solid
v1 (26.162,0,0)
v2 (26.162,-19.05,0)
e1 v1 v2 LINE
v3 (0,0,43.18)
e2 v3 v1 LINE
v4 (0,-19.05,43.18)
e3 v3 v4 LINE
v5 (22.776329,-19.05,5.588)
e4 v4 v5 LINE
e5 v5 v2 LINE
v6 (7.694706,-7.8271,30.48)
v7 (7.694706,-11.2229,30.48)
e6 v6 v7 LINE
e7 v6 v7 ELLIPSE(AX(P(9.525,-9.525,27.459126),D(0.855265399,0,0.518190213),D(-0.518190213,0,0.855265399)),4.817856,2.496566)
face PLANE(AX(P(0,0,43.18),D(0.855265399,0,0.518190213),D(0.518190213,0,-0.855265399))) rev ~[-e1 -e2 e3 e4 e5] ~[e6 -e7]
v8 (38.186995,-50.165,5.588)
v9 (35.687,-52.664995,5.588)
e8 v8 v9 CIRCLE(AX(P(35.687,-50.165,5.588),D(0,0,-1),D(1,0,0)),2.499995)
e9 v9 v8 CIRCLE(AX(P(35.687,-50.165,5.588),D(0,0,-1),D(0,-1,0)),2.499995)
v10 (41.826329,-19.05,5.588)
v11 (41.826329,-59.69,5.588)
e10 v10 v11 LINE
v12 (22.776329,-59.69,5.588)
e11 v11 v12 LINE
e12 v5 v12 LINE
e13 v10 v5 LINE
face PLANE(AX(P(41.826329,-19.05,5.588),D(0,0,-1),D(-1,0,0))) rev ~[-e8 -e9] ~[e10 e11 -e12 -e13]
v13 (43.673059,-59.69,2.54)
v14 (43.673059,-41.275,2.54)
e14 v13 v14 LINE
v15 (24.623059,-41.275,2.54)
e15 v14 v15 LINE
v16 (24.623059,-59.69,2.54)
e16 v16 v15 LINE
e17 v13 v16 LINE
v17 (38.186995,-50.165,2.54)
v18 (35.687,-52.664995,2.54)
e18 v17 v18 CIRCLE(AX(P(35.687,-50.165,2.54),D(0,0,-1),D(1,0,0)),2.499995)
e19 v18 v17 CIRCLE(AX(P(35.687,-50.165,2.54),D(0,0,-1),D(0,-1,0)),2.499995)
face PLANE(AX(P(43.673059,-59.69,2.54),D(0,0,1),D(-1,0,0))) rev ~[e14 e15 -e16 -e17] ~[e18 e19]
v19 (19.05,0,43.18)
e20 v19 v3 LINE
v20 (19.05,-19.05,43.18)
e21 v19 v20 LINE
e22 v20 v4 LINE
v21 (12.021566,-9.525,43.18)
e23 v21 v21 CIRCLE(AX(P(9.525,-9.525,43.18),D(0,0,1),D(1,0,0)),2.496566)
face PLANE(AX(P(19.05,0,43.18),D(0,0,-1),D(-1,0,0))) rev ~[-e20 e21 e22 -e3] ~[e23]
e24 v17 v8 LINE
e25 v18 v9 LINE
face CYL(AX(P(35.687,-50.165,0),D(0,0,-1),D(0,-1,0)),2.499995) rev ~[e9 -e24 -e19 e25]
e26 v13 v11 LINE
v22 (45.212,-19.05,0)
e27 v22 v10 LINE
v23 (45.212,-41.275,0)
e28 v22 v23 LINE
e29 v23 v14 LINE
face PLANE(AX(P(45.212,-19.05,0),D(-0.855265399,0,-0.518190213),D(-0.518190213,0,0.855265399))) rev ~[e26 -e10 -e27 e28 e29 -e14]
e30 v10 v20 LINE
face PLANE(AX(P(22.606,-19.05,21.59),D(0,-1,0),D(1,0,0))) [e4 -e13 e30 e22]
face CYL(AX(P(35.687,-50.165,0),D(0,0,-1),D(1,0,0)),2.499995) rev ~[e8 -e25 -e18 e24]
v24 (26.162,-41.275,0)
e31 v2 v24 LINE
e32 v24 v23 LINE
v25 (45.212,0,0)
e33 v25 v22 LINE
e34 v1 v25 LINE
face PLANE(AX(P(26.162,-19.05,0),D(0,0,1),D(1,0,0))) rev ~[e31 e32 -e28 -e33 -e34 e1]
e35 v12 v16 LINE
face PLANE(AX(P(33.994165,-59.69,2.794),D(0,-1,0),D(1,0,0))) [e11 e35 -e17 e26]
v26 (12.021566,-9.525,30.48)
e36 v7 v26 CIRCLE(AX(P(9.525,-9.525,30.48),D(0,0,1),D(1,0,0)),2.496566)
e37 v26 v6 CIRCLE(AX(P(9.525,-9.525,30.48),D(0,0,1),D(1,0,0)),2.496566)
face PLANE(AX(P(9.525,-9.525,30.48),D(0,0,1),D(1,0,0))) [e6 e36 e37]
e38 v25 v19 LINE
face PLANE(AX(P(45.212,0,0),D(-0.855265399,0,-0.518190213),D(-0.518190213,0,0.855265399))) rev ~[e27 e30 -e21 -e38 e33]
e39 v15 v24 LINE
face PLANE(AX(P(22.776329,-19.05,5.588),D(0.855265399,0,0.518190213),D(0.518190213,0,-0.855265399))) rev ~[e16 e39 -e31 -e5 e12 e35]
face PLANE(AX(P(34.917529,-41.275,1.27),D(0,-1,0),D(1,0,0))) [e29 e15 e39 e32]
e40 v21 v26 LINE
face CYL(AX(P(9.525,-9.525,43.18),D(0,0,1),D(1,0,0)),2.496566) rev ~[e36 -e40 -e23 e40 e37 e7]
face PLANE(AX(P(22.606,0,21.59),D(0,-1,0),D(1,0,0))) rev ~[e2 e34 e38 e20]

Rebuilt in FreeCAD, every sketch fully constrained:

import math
import FreeCAD as App
import Part
import Sketcher
Q = App.Units.Quantity


def add_polygon(sketch, points):
    """Adds a closed chain of lines whose ends are joined by coincident constraints."""
    first, n = sketch.GeometryCount, len(points)
    for a, b in zip(points, points[1:] + points[:1]):
        sketch.addGeometry(Part.LineSegment(App.Vector(*a, 0), App.Vector(*b, 0)), False)
    for i in range(n):
        sketch.addConstraint(Sketcher.Constraint("Coincident", first + i, 2, first + (i + 1) % n, 1))

doc = App.newDocument("Part")
params = doc.addObject("Spreadsheet::Sheet", "Params")
for row, (alias, value) in enumerate([
    ("sketch1_width", "0.75 in"),
    ("pad1_length", "0.75 in"),
    ("sketch2_width", "0.75 in"),
    ("pad2_length", "1.6 in"),
    ("pocket1_length", "0.5 in"),
    ("sketch5_width", "0.75 in"),
    ("pocket3_length", "0.725 in"),
], start=1):
    params.set(f"A{row}", alias)
    params.set(f"B{row}", "=" + value)
    params.setAlias(f"B{row}", alias)

body = doc.addObject("PartDesign::Body", "Body")

# Sketch on XZ plane
sketch1 = body.newObject("Sketcher::SketchObject", "Sketch")
sketch1.AttachmentSupport = (doc.getObject("XZ_Plane"), [""])
sketch1.MapMode = "FlatFace"
add_polygon(sketch1, [(19.05, 43.18), (0, 43.18), (26.162, 0), (45.212, 0)])  # lines 0-3
sketch1.addConstraint(Sketcher.Constraint("Horizontal", 0))
sketch1.addConstraint(Sketcher.Constraint("Horizontal", 2))
sketch1.addConstraint(Sketcher.Constraint("PointOnObject", 0, 2, -2))
sketch1.addConstraint(Sketcher.Constraint("PointOnObject", 1, 2, -1))
sketch1.addConstraint(Sketcher.Constraint("Parallel", 1, 3))
sketch1.addConstraint(Sketcher.Constraint("DistanceX", 0, 2, 0, 1, Q("0.75 in")))
sketch1.addConstraint(Sketcher.Constraint("DistanceY", -1, 1, 0, 2, Q("1.7 in")))
sketch1.addConstraint(Sketcher.Constraint("DistanceX", -1, 1, 1, 2, Q("1.03 in")))
sketch1.setExpression("Constraints[9]", "Params.sketch1_width")
pad1 = body.newObject("PartDesign::Pad", "Pad")
pad1.Profile = sketch1
pad1.setExpression("Length", "Params.pad1_length")

# Sketch on XZ plane
sketch2 = body.newObject("Sketcher::SketchObject", "Sketch001")
sketch2.AttachmentSupport = (doc.getObject("XZ_Plane"), [""])
sketch2.MapMode = "FlatFace"
sketch2.AttachmentOffset = App.Placement(App.Vector(0, 0, 0.75 * 25.4), App.Rotation())
add_polygon(sketch2, [(41.826329, 5.588), (22.776329, 5.588), (26.162, 0), (45.212, 0)])  # lines 0-3
sketch2.addConstraint(Sketcher.Constraint("Horizontal", 0))
sketch2.addConstraint(Sketcher.Constraint("Horizontal", 2))
sketch2.addConstraint(Sketcher.Constraint("PointOnObject", 1, 2, -1))
sketch2.addConstraint(Sketcher.Constraint("Parallel", 1, 3))
sketch2.addConstraint(Sketcher.Constraint("DistanceX", 0, 2, 0, 1, Q("0.75 in")))
sketch2.addConstraint(Sketcher.Constraint("DistanceY", -1, 1, 0, 2, Q("0.22 in")))
sketch2.addConstraint(Sketcher.Constraint("DistanceX", -1, 1, 1, 2, Q("1.03 in")))
sketch2.addConstraint(Sketcher.Constraint("DistanceX", -1, 1, 0, 2, 22.776329))
sketch2.setExpression("Constraints[8]", "Params.sketch2_width")
pad2 = body.newObject("PartDesign::Pad", "Pad001")
pad2.Profile = sketch2
pad2.setExpression("Length", "Params.pad2_length")

# Sketch on XY plane
sketch3 = body.newObject("Sketcher::SketchObject", "Sketch002")
sketch3.AttachmentSupport = (doc.getObject("XY_Plane"), [""])
sketch3.MapMode = "FlatFace"
sketch3.AttachmentOffset = App.Placement(App.Vector(0, 0, 1.7 * 25.4), App.Rotation())
sketch3.addGeometry(Part.Circle(App.Vector(9.525, -9.525, 0), App.Vector(0, 0, 1), 2.496566), False)
sketch3.addConstraint(Sketcher.Constraint("DistanceX", -1, 1, 0, 3, Q("0.375 in")))
sketch3.addConstraint(Sketcher.Constraint("DistanceY", 0, 3, -1, 1, Q("0.375 in")))
sketch3.addConstraint(Sketcher.Constraint("Diameter", 0, 4.993132))
pocket1 = body.newObject("PartDesign::Pocket", "Pocket")
pocket1.Profile = sketch3
pocket1.setExpression("Length", "Params.pocket1_length")

# Sketch on XY plane
sketch4 = body.newObject("Sketcher::SketchObject", "Sketch003")
sketch4.AttachmentSupport = (doc.getObject("XY_Plane"), [""])
sketch4.MapMode = "FlatFace"
sketch4.addGeometry(Part.ArcOfCircle(Part.Circle(App.Vector(35.687, -50.165, 0), App.Vector(0, 0, 1), 2.499995), math.radians(-90), math.radians(0)), False)
sketch4.addGeometry(Part.ArcOfCircle(Part.Circle(App.Vector(35.687, -50.165, 0), App.Vector(0, 0, 1), 2.499995), math.radians(0), math.radians(270)), False)
sketch4.addConstraint(Sketcher.Constraint("Tangent", 0, 1, 1, 2))
sketch4.addConstraint(Sketcher.Constraint("Coincident", 1, 1, 0, 2))
sketch4.addConstraint(Sketcher.Constraint("Horizontal", 0, 3, 1, 1))
sketch4.addConstraint(Sketcher.Constraint("Vertical", 1, 3, 0, 1))
sketch4.addConstraint(Sketcher.Constraint("DistanceX", -1, 1, 0, 3, Q("1.405 in")))
sketch4.addConstraint(Sketcher.Constraint("DistanceY", 0, 3, -1, 1, Q("1.975 in")))
sketch4.addConstraint(Sketcher.Constraint("Radius", 0, 2.499995))
pocket2 = body.newObject("PartDesign::Pocket", "Pocket001")
pocket2.Profile = sketch4
pocket2.Type = "ThroughAll"
pocket2.Reversed = True

# Sketch on XZ plane
sketch5 = body.newObject("Sketcher::SketchObject", "Sketch004")
sketch5.AttachmentSupport = (doc.getObject("XZ_Plane"), [""])
sketch5.MapMode = "FlatFace"
sketch5.AttachmentOffset = App.Placement(App.Vector(0, 0, 2.35 * 25.4), App.Rotation())
add_polygon(sketch5, [(43.673059, 2.54), (24.623059, 2.54), (26.162, 0), (45.212, 0)])  # lines 0-3
sketch5.addConstraint(Sketcher.Constraint("Horizontal", 0))
sketch5.addConstraint(Sketcher.Constraint("Horizontal", 2))
sketch5.addConstraint(Sketcher.Constraint("PointOnObject", 1, 2, -1))
sketch5.addConstraint(Sketcher.Constraint("Parallel", 1, 3))
sketch5.addConstraint(Sketcher.Constraint("DistanceX", 0, 2, 0, 1, Q("0.75 in")))
sketch5.addConstraint(Sketcher.Constraint("DistanceY", -1, 1, 0, 2, Q("0.1 in")))
sketch5.addConstraint(Sketcher.Constraint("DistanceX", -1, 1, 1, 2, Q("1.03 in")))
sketch5.addConstraint(Sketcher.Constraint("Distance", 1, 2.969838))
sketch5.setExpression("Constraints[8]", "Params.sketch5_width")
pocket3 = body.newObject("PartDesign::Pocket", "Pocket002")
pocket3.Profile = sketch5
pocket3.setExpression("Length", "Params.pocket3_length")

doc.recompute()
